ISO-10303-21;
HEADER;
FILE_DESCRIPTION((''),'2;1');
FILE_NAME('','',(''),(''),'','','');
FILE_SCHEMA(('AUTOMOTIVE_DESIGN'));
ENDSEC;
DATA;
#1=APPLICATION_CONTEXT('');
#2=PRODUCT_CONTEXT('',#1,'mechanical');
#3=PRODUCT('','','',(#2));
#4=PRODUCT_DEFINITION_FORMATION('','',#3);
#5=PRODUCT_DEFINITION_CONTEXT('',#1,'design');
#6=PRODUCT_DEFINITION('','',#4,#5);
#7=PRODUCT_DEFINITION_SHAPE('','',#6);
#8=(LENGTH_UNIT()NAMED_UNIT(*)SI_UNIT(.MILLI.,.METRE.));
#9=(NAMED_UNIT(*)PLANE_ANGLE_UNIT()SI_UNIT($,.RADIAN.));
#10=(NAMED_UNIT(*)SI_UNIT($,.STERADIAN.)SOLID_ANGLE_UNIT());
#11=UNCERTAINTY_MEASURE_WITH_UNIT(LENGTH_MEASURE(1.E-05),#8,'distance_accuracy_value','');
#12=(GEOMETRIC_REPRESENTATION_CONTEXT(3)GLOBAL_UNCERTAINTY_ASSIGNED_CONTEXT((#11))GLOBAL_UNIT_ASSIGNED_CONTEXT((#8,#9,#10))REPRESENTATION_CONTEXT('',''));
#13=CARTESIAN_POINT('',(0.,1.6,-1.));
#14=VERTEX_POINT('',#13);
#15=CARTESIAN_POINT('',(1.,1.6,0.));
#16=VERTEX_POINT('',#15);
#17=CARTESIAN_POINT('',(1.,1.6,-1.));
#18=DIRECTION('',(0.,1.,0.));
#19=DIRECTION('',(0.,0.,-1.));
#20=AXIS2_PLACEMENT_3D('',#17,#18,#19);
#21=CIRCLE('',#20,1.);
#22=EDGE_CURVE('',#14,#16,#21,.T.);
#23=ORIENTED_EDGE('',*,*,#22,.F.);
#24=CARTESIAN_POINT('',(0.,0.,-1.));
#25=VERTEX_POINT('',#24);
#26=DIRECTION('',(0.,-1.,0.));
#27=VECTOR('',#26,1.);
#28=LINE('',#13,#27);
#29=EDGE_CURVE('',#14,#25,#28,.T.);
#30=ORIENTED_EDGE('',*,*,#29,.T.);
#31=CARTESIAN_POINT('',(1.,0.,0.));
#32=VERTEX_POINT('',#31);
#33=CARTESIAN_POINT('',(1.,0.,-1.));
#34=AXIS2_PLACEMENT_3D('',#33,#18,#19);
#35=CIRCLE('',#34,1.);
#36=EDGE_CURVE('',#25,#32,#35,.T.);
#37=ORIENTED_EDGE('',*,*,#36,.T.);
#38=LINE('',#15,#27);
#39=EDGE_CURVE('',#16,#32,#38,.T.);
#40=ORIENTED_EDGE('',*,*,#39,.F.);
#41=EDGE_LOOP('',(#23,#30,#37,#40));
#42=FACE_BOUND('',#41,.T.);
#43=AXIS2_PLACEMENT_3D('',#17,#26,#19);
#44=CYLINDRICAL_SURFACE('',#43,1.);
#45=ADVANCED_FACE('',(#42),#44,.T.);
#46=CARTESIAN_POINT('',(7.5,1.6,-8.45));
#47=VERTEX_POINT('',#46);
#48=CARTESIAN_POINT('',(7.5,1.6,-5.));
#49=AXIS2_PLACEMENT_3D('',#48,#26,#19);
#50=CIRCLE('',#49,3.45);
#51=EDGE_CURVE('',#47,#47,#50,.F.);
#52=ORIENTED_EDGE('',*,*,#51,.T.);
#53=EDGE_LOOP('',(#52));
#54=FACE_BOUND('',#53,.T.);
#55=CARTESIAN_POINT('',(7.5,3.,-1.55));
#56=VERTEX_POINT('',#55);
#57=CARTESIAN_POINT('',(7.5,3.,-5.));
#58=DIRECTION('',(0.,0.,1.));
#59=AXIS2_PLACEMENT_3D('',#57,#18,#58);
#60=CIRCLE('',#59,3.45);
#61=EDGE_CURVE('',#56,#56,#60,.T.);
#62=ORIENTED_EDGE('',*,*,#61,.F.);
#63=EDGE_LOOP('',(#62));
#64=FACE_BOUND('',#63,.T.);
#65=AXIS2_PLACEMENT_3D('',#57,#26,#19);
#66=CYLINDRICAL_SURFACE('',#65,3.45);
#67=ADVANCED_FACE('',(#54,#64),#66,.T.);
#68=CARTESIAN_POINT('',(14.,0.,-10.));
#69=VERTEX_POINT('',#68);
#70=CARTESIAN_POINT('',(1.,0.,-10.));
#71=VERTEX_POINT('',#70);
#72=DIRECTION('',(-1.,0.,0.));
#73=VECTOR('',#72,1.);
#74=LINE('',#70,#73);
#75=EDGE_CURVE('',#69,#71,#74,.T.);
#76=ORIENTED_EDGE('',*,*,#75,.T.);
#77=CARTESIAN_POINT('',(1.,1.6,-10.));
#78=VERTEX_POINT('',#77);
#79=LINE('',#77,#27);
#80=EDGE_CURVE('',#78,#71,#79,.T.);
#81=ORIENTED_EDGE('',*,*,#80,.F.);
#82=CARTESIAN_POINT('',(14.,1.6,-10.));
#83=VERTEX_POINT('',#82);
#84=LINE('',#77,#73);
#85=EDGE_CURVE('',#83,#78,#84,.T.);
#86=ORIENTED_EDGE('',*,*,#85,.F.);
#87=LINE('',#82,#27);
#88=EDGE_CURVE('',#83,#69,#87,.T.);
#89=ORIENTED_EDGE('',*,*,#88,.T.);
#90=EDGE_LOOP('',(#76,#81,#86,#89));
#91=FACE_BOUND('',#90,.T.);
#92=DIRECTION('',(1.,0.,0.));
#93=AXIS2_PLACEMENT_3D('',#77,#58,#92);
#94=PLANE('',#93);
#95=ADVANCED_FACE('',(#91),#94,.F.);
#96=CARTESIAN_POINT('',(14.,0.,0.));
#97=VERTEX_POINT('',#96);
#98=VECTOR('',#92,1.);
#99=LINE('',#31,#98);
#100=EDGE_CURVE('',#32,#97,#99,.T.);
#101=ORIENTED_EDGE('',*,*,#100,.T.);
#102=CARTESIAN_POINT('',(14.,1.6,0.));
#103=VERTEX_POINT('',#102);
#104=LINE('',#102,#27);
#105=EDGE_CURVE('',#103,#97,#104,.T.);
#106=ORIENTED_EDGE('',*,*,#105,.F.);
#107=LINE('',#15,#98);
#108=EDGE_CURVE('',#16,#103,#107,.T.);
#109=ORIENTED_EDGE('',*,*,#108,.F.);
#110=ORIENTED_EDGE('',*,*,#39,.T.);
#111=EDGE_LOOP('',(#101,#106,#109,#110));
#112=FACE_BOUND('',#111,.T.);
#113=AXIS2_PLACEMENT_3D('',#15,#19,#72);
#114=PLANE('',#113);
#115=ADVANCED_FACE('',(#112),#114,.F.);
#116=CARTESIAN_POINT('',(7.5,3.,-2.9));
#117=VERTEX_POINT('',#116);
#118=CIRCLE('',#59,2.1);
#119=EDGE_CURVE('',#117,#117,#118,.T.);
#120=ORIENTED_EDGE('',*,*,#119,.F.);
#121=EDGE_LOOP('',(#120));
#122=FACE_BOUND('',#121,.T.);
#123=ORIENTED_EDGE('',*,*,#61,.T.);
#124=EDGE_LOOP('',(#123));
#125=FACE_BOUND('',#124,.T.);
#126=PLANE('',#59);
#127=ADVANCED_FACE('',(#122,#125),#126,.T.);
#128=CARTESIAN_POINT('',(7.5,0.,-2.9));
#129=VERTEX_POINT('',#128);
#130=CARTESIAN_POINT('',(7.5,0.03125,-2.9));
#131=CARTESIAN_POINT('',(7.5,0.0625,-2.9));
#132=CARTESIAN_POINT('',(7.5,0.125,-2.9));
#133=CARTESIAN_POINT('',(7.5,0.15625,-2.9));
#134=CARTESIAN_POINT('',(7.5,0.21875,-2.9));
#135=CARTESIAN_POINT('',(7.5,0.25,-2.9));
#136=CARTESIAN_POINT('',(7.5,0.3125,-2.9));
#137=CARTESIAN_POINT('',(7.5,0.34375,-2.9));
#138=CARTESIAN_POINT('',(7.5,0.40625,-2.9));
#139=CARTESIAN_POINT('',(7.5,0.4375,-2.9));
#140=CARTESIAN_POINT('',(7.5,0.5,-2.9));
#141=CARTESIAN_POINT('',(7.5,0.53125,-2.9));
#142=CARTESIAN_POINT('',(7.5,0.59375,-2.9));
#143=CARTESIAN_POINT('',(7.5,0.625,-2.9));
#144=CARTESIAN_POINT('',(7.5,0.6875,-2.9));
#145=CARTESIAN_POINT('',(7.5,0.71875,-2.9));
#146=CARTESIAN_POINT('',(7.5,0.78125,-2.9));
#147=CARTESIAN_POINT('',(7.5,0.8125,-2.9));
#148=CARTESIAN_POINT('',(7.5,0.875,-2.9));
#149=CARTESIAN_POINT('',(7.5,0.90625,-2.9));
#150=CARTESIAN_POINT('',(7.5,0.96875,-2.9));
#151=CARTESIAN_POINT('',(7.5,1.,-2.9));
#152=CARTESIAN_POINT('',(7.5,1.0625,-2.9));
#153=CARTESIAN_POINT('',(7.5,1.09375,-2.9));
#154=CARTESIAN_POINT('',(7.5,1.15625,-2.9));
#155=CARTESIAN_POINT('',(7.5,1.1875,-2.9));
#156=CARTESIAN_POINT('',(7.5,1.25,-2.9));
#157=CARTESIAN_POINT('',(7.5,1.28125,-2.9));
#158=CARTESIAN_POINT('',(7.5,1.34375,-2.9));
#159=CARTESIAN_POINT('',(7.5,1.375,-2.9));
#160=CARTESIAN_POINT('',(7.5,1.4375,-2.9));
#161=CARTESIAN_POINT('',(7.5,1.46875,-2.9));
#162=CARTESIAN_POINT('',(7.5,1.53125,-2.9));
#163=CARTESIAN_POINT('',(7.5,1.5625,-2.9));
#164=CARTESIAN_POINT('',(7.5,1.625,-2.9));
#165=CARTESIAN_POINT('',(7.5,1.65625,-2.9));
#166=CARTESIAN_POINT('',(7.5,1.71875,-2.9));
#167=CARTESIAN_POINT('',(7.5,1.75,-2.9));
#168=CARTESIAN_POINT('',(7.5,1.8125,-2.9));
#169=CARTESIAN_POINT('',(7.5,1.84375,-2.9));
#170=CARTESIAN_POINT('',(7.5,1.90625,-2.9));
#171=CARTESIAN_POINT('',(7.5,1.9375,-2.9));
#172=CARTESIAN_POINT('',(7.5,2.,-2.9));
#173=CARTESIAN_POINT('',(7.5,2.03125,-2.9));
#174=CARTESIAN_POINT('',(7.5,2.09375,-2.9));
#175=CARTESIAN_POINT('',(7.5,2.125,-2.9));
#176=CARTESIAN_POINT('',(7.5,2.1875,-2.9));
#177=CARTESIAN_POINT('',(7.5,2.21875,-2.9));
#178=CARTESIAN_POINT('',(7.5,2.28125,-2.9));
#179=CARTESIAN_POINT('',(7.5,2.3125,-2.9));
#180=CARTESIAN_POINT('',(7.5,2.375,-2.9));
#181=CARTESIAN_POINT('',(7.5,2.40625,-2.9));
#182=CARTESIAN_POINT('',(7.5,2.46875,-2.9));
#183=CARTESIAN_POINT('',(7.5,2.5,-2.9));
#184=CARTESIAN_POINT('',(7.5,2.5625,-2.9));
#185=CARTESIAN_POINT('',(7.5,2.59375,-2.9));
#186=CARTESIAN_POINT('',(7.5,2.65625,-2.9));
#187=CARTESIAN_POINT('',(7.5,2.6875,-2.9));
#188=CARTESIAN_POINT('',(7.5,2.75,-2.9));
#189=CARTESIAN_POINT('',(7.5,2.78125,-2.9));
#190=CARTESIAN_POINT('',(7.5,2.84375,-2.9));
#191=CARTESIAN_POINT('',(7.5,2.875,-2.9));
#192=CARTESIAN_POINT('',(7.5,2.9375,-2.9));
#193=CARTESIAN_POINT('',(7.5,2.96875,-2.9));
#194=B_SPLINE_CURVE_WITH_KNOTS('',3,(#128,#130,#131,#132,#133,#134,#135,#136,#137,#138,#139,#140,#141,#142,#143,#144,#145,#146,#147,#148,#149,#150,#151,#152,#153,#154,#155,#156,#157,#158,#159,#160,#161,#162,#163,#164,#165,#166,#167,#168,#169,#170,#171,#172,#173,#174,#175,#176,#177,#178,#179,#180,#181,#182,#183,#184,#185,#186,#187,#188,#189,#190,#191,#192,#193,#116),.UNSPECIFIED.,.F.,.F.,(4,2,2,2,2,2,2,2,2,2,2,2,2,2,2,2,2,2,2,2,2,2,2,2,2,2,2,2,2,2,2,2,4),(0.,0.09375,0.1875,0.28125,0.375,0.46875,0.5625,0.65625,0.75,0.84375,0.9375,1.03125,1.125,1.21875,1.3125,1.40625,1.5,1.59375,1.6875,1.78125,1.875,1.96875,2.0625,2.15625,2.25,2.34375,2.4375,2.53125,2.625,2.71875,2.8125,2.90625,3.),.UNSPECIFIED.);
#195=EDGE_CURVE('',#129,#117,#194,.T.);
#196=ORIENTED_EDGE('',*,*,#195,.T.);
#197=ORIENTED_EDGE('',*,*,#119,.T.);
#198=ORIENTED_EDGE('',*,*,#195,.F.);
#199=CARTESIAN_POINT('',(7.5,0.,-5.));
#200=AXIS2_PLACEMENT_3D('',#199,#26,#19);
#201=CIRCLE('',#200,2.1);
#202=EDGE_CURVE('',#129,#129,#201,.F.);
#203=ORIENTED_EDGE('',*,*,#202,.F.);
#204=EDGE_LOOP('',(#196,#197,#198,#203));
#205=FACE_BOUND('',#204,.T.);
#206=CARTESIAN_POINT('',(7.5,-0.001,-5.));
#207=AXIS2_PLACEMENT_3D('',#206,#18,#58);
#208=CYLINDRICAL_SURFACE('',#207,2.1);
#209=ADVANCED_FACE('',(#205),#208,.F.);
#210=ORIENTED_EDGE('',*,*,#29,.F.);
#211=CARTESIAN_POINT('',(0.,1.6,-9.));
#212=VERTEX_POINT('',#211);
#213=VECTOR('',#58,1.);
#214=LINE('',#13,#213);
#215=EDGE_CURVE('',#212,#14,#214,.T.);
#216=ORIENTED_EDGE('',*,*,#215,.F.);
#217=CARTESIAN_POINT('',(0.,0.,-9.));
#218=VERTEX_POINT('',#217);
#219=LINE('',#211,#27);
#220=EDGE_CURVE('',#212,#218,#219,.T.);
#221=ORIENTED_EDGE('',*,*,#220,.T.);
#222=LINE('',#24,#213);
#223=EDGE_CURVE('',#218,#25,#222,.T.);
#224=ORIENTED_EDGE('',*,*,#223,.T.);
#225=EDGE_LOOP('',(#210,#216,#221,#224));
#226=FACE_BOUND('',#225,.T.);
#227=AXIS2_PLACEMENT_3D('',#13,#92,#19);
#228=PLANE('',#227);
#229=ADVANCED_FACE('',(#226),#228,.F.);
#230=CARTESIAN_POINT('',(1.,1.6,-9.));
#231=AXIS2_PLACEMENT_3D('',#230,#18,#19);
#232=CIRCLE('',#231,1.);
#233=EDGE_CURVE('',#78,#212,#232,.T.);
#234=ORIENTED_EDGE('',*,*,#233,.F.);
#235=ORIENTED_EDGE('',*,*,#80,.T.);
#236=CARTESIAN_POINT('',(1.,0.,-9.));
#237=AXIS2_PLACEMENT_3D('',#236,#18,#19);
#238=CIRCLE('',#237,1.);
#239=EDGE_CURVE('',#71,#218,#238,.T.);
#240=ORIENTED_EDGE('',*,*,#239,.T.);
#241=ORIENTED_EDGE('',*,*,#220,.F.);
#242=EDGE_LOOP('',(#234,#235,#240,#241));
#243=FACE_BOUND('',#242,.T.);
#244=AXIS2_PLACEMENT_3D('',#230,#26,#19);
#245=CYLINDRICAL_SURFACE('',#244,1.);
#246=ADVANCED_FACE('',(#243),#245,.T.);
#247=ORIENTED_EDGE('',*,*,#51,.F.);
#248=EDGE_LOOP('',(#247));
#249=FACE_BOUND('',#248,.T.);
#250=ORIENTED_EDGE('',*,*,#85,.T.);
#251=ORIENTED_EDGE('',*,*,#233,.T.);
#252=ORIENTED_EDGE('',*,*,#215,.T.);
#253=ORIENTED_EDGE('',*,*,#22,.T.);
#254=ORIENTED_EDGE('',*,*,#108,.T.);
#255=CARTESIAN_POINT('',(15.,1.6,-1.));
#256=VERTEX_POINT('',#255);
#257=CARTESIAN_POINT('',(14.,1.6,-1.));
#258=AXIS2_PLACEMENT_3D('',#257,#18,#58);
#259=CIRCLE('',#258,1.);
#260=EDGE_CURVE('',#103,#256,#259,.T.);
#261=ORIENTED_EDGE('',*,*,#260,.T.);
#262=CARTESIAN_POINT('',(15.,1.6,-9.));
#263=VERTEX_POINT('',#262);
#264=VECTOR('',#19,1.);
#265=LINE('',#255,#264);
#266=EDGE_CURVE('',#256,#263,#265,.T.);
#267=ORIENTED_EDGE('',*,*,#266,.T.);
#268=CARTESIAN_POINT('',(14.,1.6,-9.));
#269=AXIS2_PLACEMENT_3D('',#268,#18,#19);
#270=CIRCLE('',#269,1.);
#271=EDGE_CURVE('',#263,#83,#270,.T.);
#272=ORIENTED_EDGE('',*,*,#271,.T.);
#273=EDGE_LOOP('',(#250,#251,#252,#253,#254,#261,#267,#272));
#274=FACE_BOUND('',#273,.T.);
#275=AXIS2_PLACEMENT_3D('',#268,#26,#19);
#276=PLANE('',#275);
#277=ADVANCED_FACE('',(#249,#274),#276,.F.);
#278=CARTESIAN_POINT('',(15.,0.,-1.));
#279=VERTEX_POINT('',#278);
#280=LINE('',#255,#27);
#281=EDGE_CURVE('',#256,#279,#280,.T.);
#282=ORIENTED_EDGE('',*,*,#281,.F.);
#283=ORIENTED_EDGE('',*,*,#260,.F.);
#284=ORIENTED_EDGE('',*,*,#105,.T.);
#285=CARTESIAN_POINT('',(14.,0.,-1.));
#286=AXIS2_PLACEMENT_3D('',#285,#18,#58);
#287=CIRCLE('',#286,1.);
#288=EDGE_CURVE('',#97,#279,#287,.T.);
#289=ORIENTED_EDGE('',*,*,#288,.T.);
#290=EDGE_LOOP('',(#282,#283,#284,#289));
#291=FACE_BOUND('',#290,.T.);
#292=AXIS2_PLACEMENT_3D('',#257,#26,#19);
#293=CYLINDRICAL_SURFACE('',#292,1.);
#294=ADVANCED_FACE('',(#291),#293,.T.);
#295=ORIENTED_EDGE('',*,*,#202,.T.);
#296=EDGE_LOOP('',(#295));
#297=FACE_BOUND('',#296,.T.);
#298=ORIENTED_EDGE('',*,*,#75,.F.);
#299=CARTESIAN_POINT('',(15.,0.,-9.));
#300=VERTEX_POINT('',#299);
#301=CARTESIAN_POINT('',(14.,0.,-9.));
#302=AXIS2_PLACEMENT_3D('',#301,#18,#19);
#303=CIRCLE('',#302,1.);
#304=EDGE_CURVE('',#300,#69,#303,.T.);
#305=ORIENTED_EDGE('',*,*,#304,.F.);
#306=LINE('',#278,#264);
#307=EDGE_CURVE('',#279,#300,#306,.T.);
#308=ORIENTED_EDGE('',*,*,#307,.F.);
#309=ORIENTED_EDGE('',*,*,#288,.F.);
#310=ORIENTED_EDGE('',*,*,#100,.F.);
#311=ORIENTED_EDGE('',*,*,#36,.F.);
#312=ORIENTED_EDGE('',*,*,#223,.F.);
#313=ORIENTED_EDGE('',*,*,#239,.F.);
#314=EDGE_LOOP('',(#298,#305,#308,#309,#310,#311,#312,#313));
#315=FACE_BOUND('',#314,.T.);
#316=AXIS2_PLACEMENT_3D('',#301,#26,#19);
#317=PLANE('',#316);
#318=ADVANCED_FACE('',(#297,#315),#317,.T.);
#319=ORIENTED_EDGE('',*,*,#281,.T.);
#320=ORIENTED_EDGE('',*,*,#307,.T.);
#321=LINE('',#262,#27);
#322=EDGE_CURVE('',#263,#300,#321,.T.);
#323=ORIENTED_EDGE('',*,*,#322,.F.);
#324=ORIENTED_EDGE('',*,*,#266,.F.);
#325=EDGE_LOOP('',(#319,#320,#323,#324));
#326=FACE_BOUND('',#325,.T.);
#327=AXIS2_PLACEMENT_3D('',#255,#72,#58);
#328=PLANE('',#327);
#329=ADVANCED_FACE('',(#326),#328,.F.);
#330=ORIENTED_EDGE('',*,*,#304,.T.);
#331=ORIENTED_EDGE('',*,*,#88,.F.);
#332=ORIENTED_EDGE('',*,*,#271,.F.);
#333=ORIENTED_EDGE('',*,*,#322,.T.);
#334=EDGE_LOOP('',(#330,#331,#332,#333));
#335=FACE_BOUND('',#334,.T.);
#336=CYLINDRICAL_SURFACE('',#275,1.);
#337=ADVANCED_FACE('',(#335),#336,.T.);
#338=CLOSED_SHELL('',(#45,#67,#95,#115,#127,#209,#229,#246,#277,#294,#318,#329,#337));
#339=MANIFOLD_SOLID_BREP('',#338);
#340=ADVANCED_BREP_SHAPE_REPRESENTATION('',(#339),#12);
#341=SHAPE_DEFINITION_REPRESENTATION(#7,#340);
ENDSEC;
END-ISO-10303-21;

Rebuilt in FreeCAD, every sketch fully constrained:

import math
import FreeCAD as App
import Part
import Sketcher

V = App.Vector
Q = App.Units.Quantity

doc = App.newDocument("Part")
body = doc.addObject("PartDesign::Body", "Body")

sketch1 = doc.addObject("Sketcher::SketchObject", "Sketch")
body.addObject(sketch1)
sketch1.AttachmentSupport = (doc.XZ_Plane, [""])
sketch1.MapMode = "FlatFace"
sketch1.addGeometry([
    Part.LineSegment(V(1, 0, 0), V(14, 0, 0)),
    Part.ArcOfCircle(Part.Circle(V(14, -1, 0), V(0, 0, 1), 1), math.radians(0), math.radians(90)),
    Part.LineSegment(V(15, -1, 0), V(15, -9, 0)),
    Part.ArcOfCircle(Part.Circle(V(14, -9, 0), V(0, 0, 1), 1), math.radians(-90), math.radians(0)),
    Part.LineSegment(V(14, -10, 0), V(1, -10, 0)),
    Part.ArcOfCircle(Part.Circle(V(1, -9, 0), V(0, 0, 1), 1), math.radians(-180), math.radians(-90)),
    Part.LineSegment(V(0, -9, 0), V(0, -1, 0)),
    Part.ArcOfCircle(Part.Circle(V(1, -1, 0), V(0, 0, 1), 1), math.radians(90), math.radians(180)),
], False)
sketch1.addConstraint([
    Sketcher.Constraint("Tangent", 0, 2, 1, 2),
    Sketcher.Constraint("Tangent", 1, 1, 2, 1),
    Sketcher.Constraint("Tangent", 2, 2, 3, 2),
    Sketcher.Constraint("Tangent", 3, 1, 4, 1),
    Sketcher.Constraint("Tangent", 4, 2, 5, 2),
    Sketcher.Constraint("Tangent", 5, 1, 6, 1),
    Sketcher.Constraint("Tangent", 6, 2, 7, 2),
    Sketcher.Constraint("Tangent", 7, 1, 0, 1),
    Sketcher.Constraint("Horizontal", 0),
    Sketcher.Constraint("Vertical", 2),
    Sketcher.Constraint("Horizontal", 4),
    Sketcher.Constraint("Vertical", 6),
    Sketcher.Constraint("Equal", 1, 3),
    Sketcher.Constraint("Equal", 3, 5),
    Sketcher.Constraint("Equal", 5, 7),
    Sketcher.Constraint("PointOnObject", 0, 2, -1),
    Sketcher.Constraint("PointOnObject", 5, 1, -2),
    Sketcher.Constraint("Radius", 1, Q("1 mm")),
    Sketcher.Constraint("DistanceX", 0, 1, 0, 2, Q("13 mm")),
    Sketcher.Constraint("DistanceY", 2, 2, 2, 1, Q("8 mm")),
])
pad1 = doc.addObject("PartDesign::Pad", "Pad")
body.addObject(pad1)
pad1.Profile = sketch1
pad1.Length = 1.6
pad1.Reversed = True

sketch2 = doc.addObject("Sketcher::SketchObject", "Sketch001")
body.addObject(sketch2)
sketch2.AttachmentSupport = (doc.XZ_Plane, [""])
sketch2.MapMode = "FlatFace"
sketch2.AttachmentOffset = App.Placement(V(0, 0, -1.6), App.Rotation())
sketch2.addGeometry(Part.Circle(V(7.5, -5, 0), V(0, 0, 1), 3.45), False)
sketch2.addConstraint([
    Sketcher.Constraint("Diameter", 0, Q("6.9 mm")),
    Sketcher.Constraint("DistanceY", 0, 3, -1, 1, Q("5 mm")),
    Sketcher.Constraint("DistanceX", -1, 1, 0, 3, Q("7.5 mm")),
])
pad2 = doc.addObject("PartDesign::Pad", "Pad001")
body.addObject(pad2)
pad2.Profile = sketch2
pad2.Length = 1.4
pad2.Reversed = True

sketch3 = doc.addObject("Sketcher::SketchObject", "Sketch002")
body.addObject(sketch3)
sketch3.AttachmentSupport = (doc.XZ_Plane, [""])
sketch3.MapMode = "FlatFace"
sketch3.AttachmentOffset = App.Placement(V(0, 0, -3), App.Rotation())
sketch3.addGeometry(Part.Circle(V(7.5, -5, 0), V(0, 0, 1), 2.1), False)
sketch3.addConstraint([
    Sketcher.Constraint("Diameter", 0, Q("4.2 mm")),
    Sketcher.Constraint("DistanceY", 0, 3, -1, 1, Q("5 mm")),
    Sketcher.Constraint("DistanceX", -1, 1, 0, 3, Q("7.5 mm")),
])
pocket1 = doc.addObject("PartDesign::Pocket", "Pocket")
body.addObject(pocket1)
pocket1.Profile = sketch3
pocket1.Type = "UpToFirst"
pocket1.Reversed = True

doc.recompute()
